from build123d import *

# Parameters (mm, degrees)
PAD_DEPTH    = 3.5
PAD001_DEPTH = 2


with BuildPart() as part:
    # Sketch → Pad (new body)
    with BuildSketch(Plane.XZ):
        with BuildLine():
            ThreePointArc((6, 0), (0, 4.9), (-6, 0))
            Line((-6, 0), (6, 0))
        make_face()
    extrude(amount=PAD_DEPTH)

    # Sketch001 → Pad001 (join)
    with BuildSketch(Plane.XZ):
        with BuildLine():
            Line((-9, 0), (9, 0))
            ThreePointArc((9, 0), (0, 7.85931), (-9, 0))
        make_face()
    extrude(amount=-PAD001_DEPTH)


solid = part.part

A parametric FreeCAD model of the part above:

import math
import FreeCAD as App
import Part
import Sketcher

doc = App.newDocument("Part")
params = doc.addObject("Spreadsheet::Sheet", "Params")
for row, (alias, value) in enumerate([
    ("sketch1_width", "12 mm"),
    ("pad1_length", "3.5 mm"),
    ("sketch2_width", "18 mm"),
    ("pad2_length", "2 mm"),
], start=1):
    params.set(f"A{row}", alias)
    params.set(f"B{row}", "=" + value)
    params.setAlias(f"B{row}", alias)

body = doc.addObject("PartDesign::Body", "Body")

# Sketch on XZ plane
sketch1 = body.newObject("Sketcher::SketchObject", "Sketch")
sketch1.AttachmentSupport = (doc.getObject("XZ_Plane"), [""])
sketch1.MapMode = "FlatFace"
sketch1.addGeometry(Part.ArcOfCircle(Part.Circle(App.Vector(0, -1.223469, 0), App.Vector(0, 0, 1), 6.123469), math.radians(11.525266), math.radians(168.474734)), False)
sketch1.addGeometry(Part.LineSegment(App.Vector(-6, 0, 0), App.Vector(6, 0, 0)), False)
sketch1.addConstraint(Sketcher.Constraint("Coincident", 0, 1, 1, 2))
sketch1.addConstraint(Sketcher.Constraint("Coincident", 1, 1, 0, 2))
sketch1.addConstraint(Sketcher.Constraint("Horizontal", 1))
sketch1.addConstraint(Sketcher.Constraint("Symmetric", 0, 1, 1, 1, -1, 1))
sketch1.addConstraint(Sketcher.Constraint("DistanceX", 1, 1, 1, 2, 12.0))
sketch1.addConstraint(Sketcher.Constraint("Radius", 0, 6.123469))
sketch1.setExpression("Constraints[4]", "Params.sketch1_width")
pad1 = body.newObject("PartDesign::Pad", "Pad")
pad1.Profile = sketch1
pad1.setExpression("Length", "Params.pad1_length")

# Sketch on XZ plane
sketch2 = body.newObject("Sketcher::SketchObject", "Sketch001")
sketch2.AttachmentSupport = (doc.getObject("XZ_Plane"), [""])
sketch2.MapMode = "FlatFace"
sketch2.addGeometry(Part.LineSegment(App.Vector(-9, 0, 0), App.Vector(9, 0, 0)), False)
sketch2.addGeometry(Part.ArcOfCircle(Part.Circle(App.Vector(0, -1.223469, 0), App.Vector(0, 0, 1), 9.082779), math.radians(7.741392), math.radians(172.258608)), False)
sketch2.addConstraint(Sketcher.Constraint("Coincident", 0, 1, 1, 2))
sketch2.addConstraint(Sketcher.Constraint("Coincident", 1, 1, 0, 2))
sketch2.addConstraint(Sketcher.Constraint("Horizontal", 0))
sketch2.addConstraint(Sketcher.Constraint("Symmetric", 0, 1, 1, 1, -1, 1))
sketch2.addConstraint(Sketcher.Constraint("DistanceX", 0, 1, 0, 2, 18.0))
sketch2.addConstraint(Sketcher.Constraint("Radius", 1, 9.082779))
sketch2.setExpression("Constraints[4]", "Params.sketch2_width")
pad2 = body.newObject("PartDesign::Pad", "Pad001")
pad2.Profile = sketch2
pad2.setExpression("Length", "Params.pad2_length")
pad2.Reversed = True

doc.recompute()
